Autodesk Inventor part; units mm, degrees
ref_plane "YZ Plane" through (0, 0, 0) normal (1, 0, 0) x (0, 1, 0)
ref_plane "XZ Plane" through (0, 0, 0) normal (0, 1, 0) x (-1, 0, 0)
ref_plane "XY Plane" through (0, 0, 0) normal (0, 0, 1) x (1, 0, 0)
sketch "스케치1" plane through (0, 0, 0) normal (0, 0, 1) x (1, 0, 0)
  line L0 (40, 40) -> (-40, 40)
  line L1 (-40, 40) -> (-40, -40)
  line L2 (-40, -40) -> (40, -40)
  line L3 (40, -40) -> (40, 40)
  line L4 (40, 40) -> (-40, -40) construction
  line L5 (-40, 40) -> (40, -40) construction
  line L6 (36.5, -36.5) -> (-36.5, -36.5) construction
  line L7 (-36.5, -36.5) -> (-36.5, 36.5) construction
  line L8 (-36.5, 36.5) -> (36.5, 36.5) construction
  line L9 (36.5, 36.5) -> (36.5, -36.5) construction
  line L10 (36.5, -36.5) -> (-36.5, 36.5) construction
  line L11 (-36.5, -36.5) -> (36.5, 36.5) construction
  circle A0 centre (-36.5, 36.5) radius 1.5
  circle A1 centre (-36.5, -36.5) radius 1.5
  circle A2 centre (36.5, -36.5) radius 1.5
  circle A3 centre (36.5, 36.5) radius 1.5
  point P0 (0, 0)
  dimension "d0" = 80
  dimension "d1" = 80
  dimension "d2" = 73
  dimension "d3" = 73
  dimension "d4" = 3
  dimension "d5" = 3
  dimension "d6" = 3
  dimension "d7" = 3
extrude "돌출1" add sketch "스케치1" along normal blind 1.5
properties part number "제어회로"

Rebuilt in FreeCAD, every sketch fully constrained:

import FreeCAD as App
import Part
import Sketcher
from FreeCAD import Vector

doc = App.newDocument("Part")
params = doc.addObject("Spreadsheet::Sheet", "Params")
for row, (alias, value) in enumerate([
    ("sketch1_diameter", "3 mm"),
    ("sketch1_width", "80 mm"),
    ("pad1_length", "1.5 mm"),
], start=1):
    params.set(f"A{row}", alias)
    params.set(f"B{row}", "=" + value)
    params.setAlias(f"B{row}", alias)

body = doc.addObject("PartDesign::Body", "Body")

# Sketch on XY plane
sketch1 = body.newObject("Sketcher::SketchObject", "Sketch")
sketch1.AttachmentSupport = (doc.getObject("XY_Plane"), [""])
sketch1.MapMode = "FlatFace"
sketch1.addGeometry([
    Part.LineSegment(Vector(40, -40, 0), Vector(40, 40, 0)),  # 0
    Part.LineSegment(Vector(40, 40, 0), Vector(-40, 40, 0)),  # 1
    Part.LineSegment(Vector(-40, 40, 0), Vector(-40, -40, 0)),  # 2
    Part.LineSegment(Vector(-40, -40, 0), Vector(40, -40, 0)),  # 3
    Part.Circle(Vector(-36.5, -36.5, 0), Vector(0, 0, 1), 1.5),  # 4
    Part.Circle(Vector(36.5, -36.5, 0), Vector(0, 0, 1), 1.5),  # 5
    Part.Circle(Vector(-36.5, 36.5, 0), Vector(0, 0, 1), 1.5),  # 6
    Part.Circle(Vector(36.5, 36.5, 0), Vector(0, 0, 1), 1.5),  # 7
], False)
sketch1.addConstraint([
    Sketcher.Constraint("Coincident", 0, 2, 1, 1),
    Sketcher.Constraint("Coincident", 1, 2, 2, 1),
    Sketcher.Constraint("Coincident", 2, 2, 3, 1),
    Sketcher.Constraint("Coincident", 3, 2, 0, 1),
    Sketcher.Constraint("Vertical", 0),
    Sketcher.Constraint("Horizontal", 1),
    Sketcher.Constraint("Vertical", 2),
    Sketcher.Constraint("Horizontal", 3),
    Sketcher.Constraint("Equal", 4, 5),
    Sketcher.Constraint("Equal", 5, 6),
    Sketcher.Constraint("Equal", 6, 7),
    Sketcher.Constraint("Symmetric", 5, 3, 6, 3, -1, 1),
    Sketcher.Constraint("Symmetric", 4, 3, 7, 3, -1, 1),
    Sketcher.Constraint("Symmetric", 0, 2, 2, 2, -1, 1),
    Sketcher.Constraint("Symmetric", 4, 3, 5, 3, -2),
    Sketcher.Constraint("Equal", 3, 0),
    Sketcher.Constraint("Diameter", 4, 3.0),
    Sketcher.Constraint("DistanceX", 1, 2, 1, 1, 80.0),
    Sketcher.Constraint("DistanceX", 4, 3, 5, 3, 73.0),
    Sketcher.Constraint("DistanceY", 4, 3, 6, 3, 73.0),
])
sketch1.setExpression("Constraints[16]", "Params.sketch1_diameter")
sketch1.setExpression("Constraints[17]", "Params.sketch1_width")
pad1 = body.newObject("PartDesign::Pad", "Pad")
pad1.Profile = sketch1
pad1.setExpression("Length", "Params.pad1_length")

doc.recompute()
